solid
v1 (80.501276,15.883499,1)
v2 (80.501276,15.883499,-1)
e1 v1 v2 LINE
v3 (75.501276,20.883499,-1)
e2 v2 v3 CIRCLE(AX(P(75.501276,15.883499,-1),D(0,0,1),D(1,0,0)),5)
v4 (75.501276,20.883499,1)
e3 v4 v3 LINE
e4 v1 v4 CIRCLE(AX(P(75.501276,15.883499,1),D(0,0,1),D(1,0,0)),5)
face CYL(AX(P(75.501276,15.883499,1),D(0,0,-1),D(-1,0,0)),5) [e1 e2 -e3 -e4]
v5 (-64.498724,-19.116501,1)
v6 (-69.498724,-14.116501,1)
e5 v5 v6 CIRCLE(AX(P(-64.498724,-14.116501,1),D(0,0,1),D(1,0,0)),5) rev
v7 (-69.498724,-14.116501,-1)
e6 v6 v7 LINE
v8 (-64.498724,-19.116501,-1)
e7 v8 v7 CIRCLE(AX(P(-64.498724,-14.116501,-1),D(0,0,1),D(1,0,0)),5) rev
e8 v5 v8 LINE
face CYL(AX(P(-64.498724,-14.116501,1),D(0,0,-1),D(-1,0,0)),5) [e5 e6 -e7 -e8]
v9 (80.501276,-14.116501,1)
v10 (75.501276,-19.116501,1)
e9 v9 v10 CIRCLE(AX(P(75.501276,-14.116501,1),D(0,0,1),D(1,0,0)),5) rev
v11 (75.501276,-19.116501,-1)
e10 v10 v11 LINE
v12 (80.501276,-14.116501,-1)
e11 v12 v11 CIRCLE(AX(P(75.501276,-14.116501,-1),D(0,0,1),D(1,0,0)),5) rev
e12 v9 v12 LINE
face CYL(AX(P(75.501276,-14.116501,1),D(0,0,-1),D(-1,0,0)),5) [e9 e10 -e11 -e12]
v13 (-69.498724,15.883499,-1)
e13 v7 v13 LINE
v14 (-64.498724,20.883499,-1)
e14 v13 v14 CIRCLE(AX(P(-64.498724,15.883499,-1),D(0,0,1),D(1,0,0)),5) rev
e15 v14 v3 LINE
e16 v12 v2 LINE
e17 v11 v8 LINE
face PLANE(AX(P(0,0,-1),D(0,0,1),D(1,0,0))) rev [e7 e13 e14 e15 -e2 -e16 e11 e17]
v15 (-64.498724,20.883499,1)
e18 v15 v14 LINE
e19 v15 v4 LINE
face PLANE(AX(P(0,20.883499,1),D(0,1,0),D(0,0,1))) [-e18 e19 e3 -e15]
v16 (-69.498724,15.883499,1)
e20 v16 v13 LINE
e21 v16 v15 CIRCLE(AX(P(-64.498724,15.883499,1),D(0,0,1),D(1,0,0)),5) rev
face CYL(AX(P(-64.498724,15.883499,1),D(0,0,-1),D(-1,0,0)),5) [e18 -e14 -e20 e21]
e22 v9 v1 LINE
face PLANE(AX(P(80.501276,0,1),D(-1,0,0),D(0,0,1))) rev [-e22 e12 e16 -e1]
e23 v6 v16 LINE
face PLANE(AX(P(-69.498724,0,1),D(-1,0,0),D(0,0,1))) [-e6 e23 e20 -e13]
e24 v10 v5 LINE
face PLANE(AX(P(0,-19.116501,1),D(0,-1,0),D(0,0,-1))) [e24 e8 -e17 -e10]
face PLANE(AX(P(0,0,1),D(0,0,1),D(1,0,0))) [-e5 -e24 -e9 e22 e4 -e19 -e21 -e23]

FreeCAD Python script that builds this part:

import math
import FreeCAD as App
import Part
import Sketcher

V = App.Vector

doc = App.newDocument("Part")
body = doc.addObject("PartDesign::Body", "Body")

# Sketch on XY plane
sketch1 = body.newObject("Sketcher::SketchObject", "Sketch")
sketch1.AttachmentSupport = (doc.getObject("XY_Plane"), [""])
sketch1.MapMode = "FlatFace"
sketch1.addGeometry([
    Part.ArcOfCircle(Part.Circle(V(76, -14, 0), V(0, 0, 1), 5), math.radians(-90), math.radians(0)),  # 0
    Part.LineSegment(V(81, -14, 0), V(81, 16, 0)),  # 1
    Part.ArcOfCircle(Part.Circle(V(76, 16, 0), V(0, 0, 1), 5), math.radians(0), math.radians(90)),  # 2
    Part.LineSegment(V(76, 21, 0), V(-64, 21, 0)),  # 3
    Part.ArcOfCircle(Part.Circle(V(-64, 16, 0), V(0, 0, 1), 5), math.radians(90), math.radians(180)),  # 4
    Part.LineSegment(V(-69, 16, 0), V(-69, -14, 0)),  # 5
    Part.ArcOfCircle(Part.Circle(V(-64, -14, 0), V(0, 0, 1), 5), math.radians(-180), math.radians(-90)),  # 6
    Part.LineSegment(V(-64, -19, 0), V(76, -19, 0)),  # 7
], False)
sketch1.addConstraint([
    Sketcher.Constraint("Tangent", 0, 2, 1, 1),
    Sketcher.Constraint("Tangent", 1, 2, 2, 1),
    Sketcher.Constraint("Tangent", 2, 2, 3, 1),
    Sketcher.Constraint("Tangent", 3, 2, 4, 1),
    Sketcher.Constraint("Tangent", 4, 2, 5, 1),
    Sketcher.Constraint("Tangent", 5, 2, 6, 1),
    Sketcher.Constraint("Tangent", 6, 2, 7, 1),
    Sketcher.Constraint("Tangent", 7, 2, 0, 1),
    Sketcher.Constraint("Vertical", 1),
    Sketcher.Constraint("Horizontal", 3),
    Sketcher.Constraint("Vertical", 5),
    Sketcher.Constraint("Horizontal", 7),
    Sketcher.Constraint("Equal", 0, 2),
    Sketcher.Constraint("Equal", 2, 4),
    Sketcher.Constraint("Equal", 4, 6),
    Sketcher.Constraint("Radius", 0, 5.0),
    Sketcher.Constraint("DistanceX", 3, 2, 3, 1, 140.0),
    Sketcher.Constraint("DistanceY", 1, 1, 1, 2, 30.0),
    Sketcher.Constraint("DistanceY", 0, 3, -1, 1, 14.116501),
    Sketcher.Constraint("DistanceX", -1, 1, 0, 3, 75.501276),
])
pad1 = body.newObject("PartDesign::Pad", "Pad")
pad1.Profile = sketch1
pad1.Length = 2
pad1.Midplane = True

doc.recompute()
